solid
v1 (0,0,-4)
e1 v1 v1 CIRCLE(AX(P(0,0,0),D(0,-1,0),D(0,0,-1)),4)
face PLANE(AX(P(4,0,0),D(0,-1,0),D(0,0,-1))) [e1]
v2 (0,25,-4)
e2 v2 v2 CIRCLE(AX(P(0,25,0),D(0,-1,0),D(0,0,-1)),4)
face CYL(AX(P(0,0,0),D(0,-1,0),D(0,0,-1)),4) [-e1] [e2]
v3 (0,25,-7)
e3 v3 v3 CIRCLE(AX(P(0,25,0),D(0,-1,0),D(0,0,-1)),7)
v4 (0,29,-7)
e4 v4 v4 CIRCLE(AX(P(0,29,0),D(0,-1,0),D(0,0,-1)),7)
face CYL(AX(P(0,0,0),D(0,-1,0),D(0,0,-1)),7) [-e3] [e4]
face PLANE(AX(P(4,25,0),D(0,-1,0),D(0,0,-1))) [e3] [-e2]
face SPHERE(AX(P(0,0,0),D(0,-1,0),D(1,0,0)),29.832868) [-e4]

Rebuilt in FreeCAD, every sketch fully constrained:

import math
import FreeCAD as App
import Part
import Sketcher
from FreeCAD import Vector

doc = App.newDocument("Part")
body = doc.addObject("PartDesign::Body", "Body")

# Sketch on XY plane
sketch1 = doc.addObject("Sketcher::SketchObject", "Sketch")
body.addObject(sketch1)
sketch1.AttachmentSupport = (doc.XY_Plane, [""])
sketch1.MapMode = "FlatFace"
sketch1.addGeometry([
    Part.LineSegment(Vector(0, 29.8, 0), Vector(0, 0, 0)),  # 0
    Part.LineSegment(Vector(0, 0, 0), Vector(4, 0, 0)),  # 1
    Part.LineSegment(Vector(4, 0, 0), Vector(4, 25, 0)),  # 2
    Part.LineSegment(Vector(4, 25, 0), Vector(7, 25, 0)),  # 3
    Part.LineSegment(Vector(7, 25, 0), Vector(7, 29, 0)),  # 4
    Part.ArcOfCircle(Part.Circle(Vector(0, 0, 0), Vector(0, 0, 1), 29.8), math.radians(76.43), math.radians(90)),  # 5
], False)
sketch1.addConstraint([
    Sketcher.Constraint("Coincident", 0, 2, 1, 1),
    Sketcher.Constraint("Coincident", 1, 2, 2, 1),
    Sketcher.Constraint("Coincident", 2, 2, 3, 1),
    Sketcher.Constraint("Coincident", 3, 2, 4, 1),
    Sketcher.Constraint("Coincident", 4, 2, 5, 1),
    Sketcher.Constraint("Coincident", 5, 2, 0, 1),
    Sketcher.Constraint("Vertical", 0),
    Sketcher.Constraint("Horizontal", 1),
    Sketcher.Constraint("Vertical", 2),
    Sketcher.Constraint("Horizontal", 3),
    Sketcher.Constraint("Vertical", 4),
    Sketcher.Constraint("Coincident", 5, 3, -1, 1),
    Sketcher.Constraint("Coincident", 0, 2, -1, 1),
    Sketcher.Constraint("Equal", 1, 4),
    Sketcher.Constraint("DistanceX", 1, 1, 1, 2, 4.0),
    Sketcher.Constraint("DistanceX", 3, 1, 3, 2, 3.0),
    Sketcher.Constraint("DistanceY", 2, 1, 2, 2, 25.0),
])
revolution = doc.addObject("PartDesign::Revolution", "Revolution")
body.addObject(revolution)
revolution.Profile = sketch1
revolution.ReferenceAxis = (sketch1, ["V_Axis"])
revolution.Angle = 360

doc.recompute()
